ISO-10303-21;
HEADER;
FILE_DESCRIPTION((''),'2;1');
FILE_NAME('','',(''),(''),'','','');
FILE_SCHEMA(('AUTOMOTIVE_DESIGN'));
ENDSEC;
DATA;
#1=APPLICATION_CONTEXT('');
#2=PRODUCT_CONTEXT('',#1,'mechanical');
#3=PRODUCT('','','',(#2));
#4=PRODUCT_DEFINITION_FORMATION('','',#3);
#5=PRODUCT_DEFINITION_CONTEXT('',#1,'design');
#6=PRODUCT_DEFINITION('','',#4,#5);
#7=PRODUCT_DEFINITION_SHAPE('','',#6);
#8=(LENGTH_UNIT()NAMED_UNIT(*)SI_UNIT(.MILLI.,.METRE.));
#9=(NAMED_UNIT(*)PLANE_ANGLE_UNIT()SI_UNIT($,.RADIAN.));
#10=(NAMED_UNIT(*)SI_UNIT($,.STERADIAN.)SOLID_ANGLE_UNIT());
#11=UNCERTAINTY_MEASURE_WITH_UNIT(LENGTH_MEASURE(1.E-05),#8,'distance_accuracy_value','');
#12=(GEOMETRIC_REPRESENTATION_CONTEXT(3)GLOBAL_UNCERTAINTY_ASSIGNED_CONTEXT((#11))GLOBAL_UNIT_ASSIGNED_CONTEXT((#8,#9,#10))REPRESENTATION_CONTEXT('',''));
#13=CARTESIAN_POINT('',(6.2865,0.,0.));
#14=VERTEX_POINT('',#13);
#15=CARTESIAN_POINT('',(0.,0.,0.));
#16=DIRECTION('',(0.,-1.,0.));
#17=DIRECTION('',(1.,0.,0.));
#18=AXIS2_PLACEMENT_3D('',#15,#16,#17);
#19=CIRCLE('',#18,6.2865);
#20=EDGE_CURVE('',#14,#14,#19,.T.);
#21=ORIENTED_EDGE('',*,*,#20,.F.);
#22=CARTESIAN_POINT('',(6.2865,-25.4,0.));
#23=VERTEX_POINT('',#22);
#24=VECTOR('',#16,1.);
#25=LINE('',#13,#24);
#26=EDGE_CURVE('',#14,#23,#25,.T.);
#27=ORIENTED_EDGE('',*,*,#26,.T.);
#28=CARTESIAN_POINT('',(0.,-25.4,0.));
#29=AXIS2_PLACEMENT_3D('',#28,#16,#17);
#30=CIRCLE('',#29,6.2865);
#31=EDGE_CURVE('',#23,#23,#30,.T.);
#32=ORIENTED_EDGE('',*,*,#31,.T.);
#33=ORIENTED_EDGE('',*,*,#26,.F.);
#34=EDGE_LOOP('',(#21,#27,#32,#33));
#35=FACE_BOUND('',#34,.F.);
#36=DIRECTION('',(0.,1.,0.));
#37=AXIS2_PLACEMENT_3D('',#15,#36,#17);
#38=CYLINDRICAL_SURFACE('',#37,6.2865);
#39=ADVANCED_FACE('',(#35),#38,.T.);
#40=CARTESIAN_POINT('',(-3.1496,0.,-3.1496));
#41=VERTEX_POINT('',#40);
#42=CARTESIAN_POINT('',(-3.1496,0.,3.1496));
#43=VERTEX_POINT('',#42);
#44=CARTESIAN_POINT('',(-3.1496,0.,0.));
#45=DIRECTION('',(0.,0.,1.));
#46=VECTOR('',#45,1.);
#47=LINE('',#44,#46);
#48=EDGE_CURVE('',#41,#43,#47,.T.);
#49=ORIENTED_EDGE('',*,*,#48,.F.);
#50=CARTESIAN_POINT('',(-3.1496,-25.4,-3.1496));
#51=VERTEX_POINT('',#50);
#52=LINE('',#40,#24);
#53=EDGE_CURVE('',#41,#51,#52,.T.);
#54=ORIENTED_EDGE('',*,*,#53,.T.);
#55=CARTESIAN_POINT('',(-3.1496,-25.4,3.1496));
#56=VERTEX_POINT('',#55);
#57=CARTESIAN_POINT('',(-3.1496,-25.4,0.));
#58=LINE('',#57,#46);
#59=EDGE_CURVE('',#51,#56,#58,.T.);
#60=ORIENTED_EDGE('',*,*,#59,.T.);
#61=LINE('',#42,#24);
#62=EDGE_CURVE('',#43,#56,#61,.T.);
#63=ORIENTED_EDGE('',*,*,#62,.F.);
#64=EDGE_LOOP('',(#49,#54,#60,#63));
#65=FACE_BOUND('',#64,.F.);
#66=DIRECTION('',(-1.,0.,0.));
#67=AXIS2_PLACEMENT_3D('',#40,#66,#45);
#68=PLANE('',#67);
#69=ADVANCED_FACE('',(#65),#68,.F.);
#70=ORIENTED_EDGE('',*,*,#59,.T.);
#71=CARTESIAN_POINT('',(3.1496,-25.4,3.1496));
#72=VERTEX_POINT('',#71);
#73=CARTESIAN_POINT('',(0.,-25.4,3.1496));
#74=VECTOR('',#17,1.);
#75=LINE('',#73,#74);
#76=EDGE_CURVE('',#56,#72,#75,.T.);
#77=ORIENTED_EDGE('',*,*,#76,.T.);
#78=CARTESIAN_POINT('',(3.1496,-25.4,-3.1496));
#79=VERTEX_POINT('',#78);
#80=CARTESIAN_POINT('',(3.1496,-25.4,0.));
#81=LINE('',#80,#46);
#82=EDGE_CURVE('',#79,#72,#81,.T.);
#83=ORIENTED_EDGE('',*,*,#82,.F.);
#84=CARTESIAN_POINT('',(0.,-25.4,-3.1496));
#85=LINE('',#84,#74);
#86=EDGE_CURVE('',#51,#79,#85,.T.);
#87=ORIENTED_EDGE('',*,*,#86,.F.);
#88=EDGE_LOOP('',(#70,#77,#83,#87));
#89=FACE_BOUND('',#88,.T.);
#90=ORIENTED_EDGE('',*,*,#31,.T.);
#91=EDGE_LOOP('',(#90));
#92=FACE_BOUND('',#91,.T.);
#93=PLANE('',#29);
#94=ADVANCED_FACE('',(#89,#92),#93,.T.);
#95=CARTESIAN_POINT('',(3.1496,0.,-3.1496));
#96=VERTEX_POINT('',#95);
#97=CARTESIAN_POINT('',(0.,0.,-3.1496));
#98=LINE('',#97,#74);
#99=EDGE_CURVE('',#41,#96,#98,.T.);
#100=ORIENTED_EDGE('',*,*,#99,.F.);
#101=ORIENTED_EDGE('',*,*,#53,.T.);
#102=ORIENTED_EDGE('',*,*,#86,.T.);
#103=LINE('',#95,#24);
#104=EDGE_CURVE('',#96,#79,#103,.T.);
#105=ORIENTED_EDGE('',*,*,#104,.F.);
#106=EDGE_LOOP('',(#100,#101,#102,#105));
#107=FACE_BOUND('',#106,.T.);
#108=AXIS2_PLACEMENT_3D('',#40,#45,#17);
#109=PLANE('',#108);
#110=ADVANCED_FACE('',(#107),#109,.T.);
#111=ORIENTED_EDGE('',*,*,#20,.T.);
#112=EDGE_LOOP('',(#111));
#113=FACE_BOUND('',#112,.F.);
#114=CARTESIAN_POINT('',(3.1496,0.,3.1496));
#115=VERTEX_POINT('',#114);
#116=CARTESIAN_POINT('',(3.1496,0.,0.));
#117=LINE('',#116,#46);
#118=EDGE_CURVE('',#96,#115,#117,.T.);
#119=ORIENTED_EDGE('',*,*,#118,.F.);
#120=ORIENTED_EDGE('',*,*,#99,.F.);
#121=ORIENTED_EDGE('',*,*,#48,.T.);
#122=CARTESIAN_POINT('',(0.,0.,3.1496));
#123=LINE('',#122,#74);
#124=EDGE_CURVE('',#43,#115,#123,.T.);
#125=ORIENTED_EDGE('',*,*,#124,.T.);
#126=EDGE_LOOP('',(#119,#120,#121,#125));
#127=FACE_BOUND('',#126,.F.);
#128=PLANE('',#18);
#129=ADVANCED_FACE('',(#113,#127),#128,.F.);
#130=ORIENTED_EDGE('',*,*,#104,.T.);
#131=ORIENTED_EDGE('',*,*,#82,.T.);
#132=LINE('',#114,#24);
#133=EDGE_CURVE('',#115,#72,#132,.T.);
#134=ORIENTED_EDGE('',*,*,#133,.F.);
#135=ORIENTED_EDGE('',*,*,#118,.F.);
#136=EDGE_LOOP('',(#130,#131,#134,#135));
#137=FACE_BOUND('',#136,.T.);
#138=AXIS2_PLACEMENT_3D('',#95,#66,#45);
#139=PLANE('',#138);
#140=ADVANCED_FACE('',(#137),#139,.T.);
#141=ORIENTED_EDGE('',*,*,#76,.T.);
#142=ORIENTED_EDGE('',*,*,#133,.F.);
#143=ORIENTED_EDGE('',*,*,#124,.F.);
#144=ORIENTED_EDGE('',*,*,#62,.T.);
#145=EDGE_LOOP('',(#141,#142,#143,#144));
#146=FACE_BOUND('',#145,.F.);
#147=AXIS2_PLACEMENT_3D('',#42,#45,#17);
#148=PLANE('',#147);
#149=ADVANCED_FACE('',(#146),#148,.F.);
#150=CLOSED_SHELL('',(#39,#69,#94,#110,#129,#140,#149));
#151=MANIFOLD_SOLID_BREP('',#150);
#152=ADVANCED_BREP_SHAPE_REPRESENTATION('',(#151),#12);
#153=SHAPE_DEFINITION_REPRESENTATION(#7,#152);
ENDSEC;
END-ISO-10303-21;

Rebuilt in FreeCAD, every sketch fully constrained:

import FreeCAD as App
import Part
import Sketcher
from FreeCAD import Vector
Q = App.Units.Quantity

doc = App.newDocument("Part")
body = doc.addObject("PartDesign::Body", "Body")

# Sketch on XZ plane
sketch1 = body.newObject("Sketcher::SketchObject", "Sketch")
sketch1.AttachmentSupport = (doc.getObject("XZ_Plane"), [""])
sketch1.MapMode = "FlatFace"
sketch1.addGeometry([
    Part.Circle(Vector(0, 0, 0), Vector(0, 0, 1), 6),  # 0
    Part.LineSegment(Vector(3, -3, 0), Vector(-3, -3, 0)),  # 1
    Part.LineSegment(Vector(-3, -3, 0), Vector(-3, 3, 0)),  # 2
    Part.LineSegment(Vector(-3, 3, 0), Vector(3, 3, 0)),  # 3
    Part.LineSegment(Vector(3, 3, 0), Vector(3, -3, 0)),  # 4
], False)
sketch1.addConstraint([
    Sketcher.Constraint("Coincident", 1, 2, 2, 1),
    Sketcher.Constraint("Coincident", 2, 2, 3, 1),
    Sketcher.Constraint("Coincident", 3, 2, 4, 1),
    Sketcher.Constraint("Coincident", 4, 2, 1, 1),
    Sketcher.Constraint("Horizontal", 1),
    Sketcher.Constraint("Vertical", 2),
    Sketcher.Constraint("Horizontal", 3),
    Sketcher.Constraint("Vertical", 4),
    Sketcher.Constraint("Coincident", 0, 3, -1, 1),
    Sketcher.Constraint("Symmetric", 1, 2, 3, 2, -1, 1),
    Sketcher.Constraint("Equal", 3, 2),
    Sketcher.Constraint("Diameter", 0, Q("0.495 in")),
    Sketcher.Constraint("DistanceX", 1, 2, 1, 1, Q("0.248 in")),
])
pad1 = body.newObject("PartDesign::Pad", "Pad")
pad1.Profile = sketch1
pad1.Length = Q("1 in")

doc.recompute()
